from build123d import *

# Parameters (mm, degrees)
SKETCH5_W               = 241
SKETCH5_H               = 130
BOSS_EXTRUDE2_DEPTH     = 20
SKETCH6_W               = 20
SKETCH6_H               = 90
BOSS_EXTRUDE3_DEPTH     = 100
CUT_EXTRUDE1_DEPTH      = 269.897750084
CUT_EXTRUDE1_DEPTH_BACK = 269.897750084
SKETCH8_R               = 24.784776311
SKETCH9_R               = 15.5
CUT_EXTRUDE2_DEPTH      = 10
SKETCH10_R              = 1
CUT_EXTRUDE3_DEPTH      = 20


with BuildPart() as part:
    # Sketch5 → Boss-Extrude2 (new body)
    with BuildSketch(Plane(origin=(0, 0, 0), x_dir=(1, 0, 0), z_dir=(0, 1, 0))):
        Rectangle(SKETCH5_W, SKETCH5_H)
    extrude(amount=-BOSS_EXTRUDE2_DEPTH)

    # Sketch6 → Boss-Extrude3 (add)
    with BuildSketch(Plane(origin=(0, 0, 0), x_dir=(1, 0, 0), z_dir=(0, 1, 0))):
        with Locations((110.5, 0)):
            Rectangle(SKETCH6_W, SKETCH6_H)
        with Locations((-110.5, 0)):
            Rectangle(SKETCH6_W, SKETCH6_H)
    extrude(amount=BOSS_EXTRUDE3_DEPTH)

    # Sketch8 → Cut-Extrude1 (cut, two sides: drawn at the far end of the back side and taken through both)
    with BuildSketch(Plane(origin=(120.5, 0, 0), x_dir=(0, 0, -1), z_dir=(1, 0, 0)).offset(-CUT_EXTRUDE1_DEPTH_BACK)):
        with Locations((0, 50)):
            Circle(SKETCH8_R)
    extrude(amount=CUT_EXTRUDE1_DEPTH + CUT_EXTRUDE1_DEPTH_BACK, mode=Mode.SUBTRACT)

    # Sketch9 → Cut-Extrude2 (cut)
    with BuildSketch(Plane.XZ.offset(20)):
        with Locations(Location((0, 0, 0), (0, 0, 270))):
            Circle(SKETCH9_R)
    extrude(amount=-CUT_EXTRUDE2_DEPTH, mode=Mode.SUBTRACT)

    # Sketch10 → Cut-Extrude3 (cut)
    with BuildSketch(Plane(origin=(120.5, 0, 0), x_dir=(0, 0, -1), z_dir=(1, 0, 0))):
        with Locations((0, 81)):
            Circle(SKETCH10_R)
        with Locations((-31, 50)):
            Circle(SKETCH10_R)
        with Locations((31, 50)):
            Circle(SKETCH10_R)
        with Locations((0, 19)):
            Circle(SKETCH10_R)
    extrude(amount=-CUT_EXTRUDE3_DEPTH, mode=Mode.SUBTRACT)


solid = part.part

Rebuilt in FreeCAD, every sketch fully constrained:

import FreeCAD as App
import Part
import Sketcher
from FreeCAD import Vector


def add_polygon(sketch, points):
    """Adds a closed chain of lines whose ends are joined by coincident constraints."""
    first, n = sketch.GeometryCount, len(points)
    for a, b in zip(points, points[1:] + points[:1]):
        sketch.addGeometry(Part.LineSegment(App.Vector(*a, 0), App.Vector(*b, 0)), False)
    for i in range(n):
        sketch.addConstraint(Sketcher.Constraint("Coincident", first + i, 2, first + (i + 1) % n, 1))

doc = App.newDocument("Part")
params = doc.addObject("Spreadsheet::Sheet", "Params")
for row, (alias, value) in enumerate([
    ("sketch1_width", "241 mm"),
    ("sketch1_height", "130 mm"),
    ("pad1_length", "20 mm"),
    ("sketch2_width", "20 mm"),
    ("sketch2_height", "90 mm"),
    ("pad2_length", "100 mm"),
    ("sketch4_diameter", "31 mm"),
    ("pocket2_length", "10 mm"),
    ("sketch5_diameter", "2 mm"),
    ("pocket3_length", "20 mm"),
], start=1):
    params.set(f"A{row}", alias)
    params.set(f"B{row}", "=" + value)
    params.setAlias(f"B{row}", alias)

body = doc.addObject("PartDesign::Body", "Body")

# Sketch on XZ plane
sketch1 = body.newObject("Sketcher::SketchObject", "Sketch")
sketch1.AttachmentSupport = (doc.getObject("XZ_Plane"), [""])
sketch1.MapMode = "FlatFace"
add_polygon(sketch1, [(-120, -65), (-120, 65), (120, 65), (120, -65)])  # lines 0-3
sketch1.addConstraint([
    Sketcher.Constraint("Vertical", 0),
    Sketcher.Constraint("Horizontal", 1),
    Sketcher.Constraint("Vertical", 2),
    Sketcher.Constraint("Horizontal", 3),
    Sketcher.Constraint("Symmetric", 0, 2, 2, 2, -1, 1),
    Sketcher.Constraint("DistanceX", 1, 1, 1, 2, 241.0),
    Sketcher.Constraint("DistanceY", 0, 1, 0, 2, 130.0),
])
sketch1.setExpression("Constraints[9]", "Params.sketch1_width")
sketch1.setExpression("Constraints[10]", "Params.sketch1_height")
pad1 = body.newObject("PartDesign::Pad", "Pad")
pad1.Profile = sketch1
pad1.setExpression("Length", "Params.pad1_length")

# Sketch on XZ plane
sketch2 = body.newObject("Sketcher::SketchObject", "Sketch001")
sketch2.AttachmentSupport = (doc.getObject("XZ_Plane"), [""])
sketch2.MapMode = "FlatFace"
add_polygon(sketch2, [(100, -45), (100, 45), (120, 45), (120, -45)])  # lines 0-3
add_polygon(sketch2, [(-120, -45), (-120, 45), (-100, 45), (-100, -45)])  # lines 4-7
sketch2.addConstraint([
    Sketcher.Constraint("Vertical", 0),
    Sketcher.Constraint("Horizontal", 1),
    Sketcher.Constraint("Vertical", 2),
    Sketcher.Constraint("Horizontal", 3),
    Sketcher.Constraint("Vertical", 4),
    Sketcher.Constraint("Horizontal", 5),
    Sketcher.Constraint("Vertical", 6),
    Sketcher.Constraint("Horizontal", 7),
    Sketcher.Constraint("Symmetric", 2, 2, 4, 2, -1, 1),
    Sketcher.Constraint("Symmetric", 0, 2, 6, 2, -1, 1),
    Sketcher.Constraint("Horizontal", 1, 2, 4, 2),
    Sketcher.Constraint("DistanceX", 1, 1, 1, 2, 20.0),
    Sketcher.Constraint("DistanceY", 0, 1, 0, 2, 90.0),
    Sketcher.Constraint("DistanceX", 4, 2, 0, 2, 221.0),
])
sketch2.setExpression("Constraints[19]", "Params.sketch2_width")
sketch2.setExpression("Constraints[20]", "Params.sketch2_height")
pad2 = body.newObject("PartDesign::Pad", "Pad001")
pad2.Profile = sketch2
pad2.setExpression("Length", "Params.pad2_length")
pad2.Reversed = True

# Sketch on YZ plane
sketch3 = body.newObject("Sketcher::SketchObject", "Sketch002")
sketch3.AttachmentSupport = (doc.getObject("YZ_Plane"), [""])
sketch3.MapMode = "FlatFace"
sketch3.AttachmentOffset = App.Placement(Vector(0, 0, 120.5), App.Rotation())
sketch3.addGeometry(Part.Circle(Vector(50, 0, 0), Vector(0, 0, 1), 25), False)
sketch3.addConstraint([
    Sketcher.Constraint("PointOnObject", 0, 3, -1),
    Sketcher.Constraint("DistanceX", -1, 1, 0, 3, 50.0),
    Sketcher.Constraint("Diameter", 0, 49.569553),
])
pocket1 = body.newObject("PartDesign::Pocket", "Pocket")
pocket1.Profile = sketch3
pocket1.Type = "ThroughAll"
pocket1.Midplane = True

# Sketch on XZ plane
sketch4 = body.newObject("Sketcher::SketchObject", "Sketch003")
sketch4.AttachmentSupport = (doc.getObject("XZ_Plane"), [""])
sketch4.MapMode = "FlatFace"
sketch4.AttachmentOffset = App.Placement(Vector(0, 0, 20), App.Rotation())
sketch4.addGeometry(Part.Circle(Vector(0, 0, 0), Vector(0, 0, 1), 16), False)
sketch4.addConstraint([
    Sketcher.Constraint("Coincident", 0, 3, -1, 1),
    Sketcher.Constraint("Diameter", 0, 31.0),
])
sketch4.setExpression("Constraints[1]", "Params.sketch4_diameter")
pocket2 = body.newObject("PartDesign::Pocket", "Pocket001")
pocket2.Profile = sketch4
pocket2.setExpression("Length", "Params.pocket2_length")

# Sketch on YZ plane
sketch5 = body.newObject("Sketcher::SketchObject", "Sketch004")
sketch5.AttachmentSupport = (doc.getObject("YZ_Plane"), [""])
sketch5.MapMode = "FlatFace"
sketch5.AttachmentOffset = App.Placement(Vector(0, 0, 120.5), App.Rotation())
sketch5.addGeometry([
    Part.Circle(Vector(81, 0, 0), Vector(0, 0, 1), 1),
    Part.Circle(Vector(50, 31, 0), Vector(0, 0, 1), 1),
    Part.Circle(Vector(50, -31, 0), Vector(0, 0, 1), 1),
    Part.Circle(Vector(19, 0, 0), Vector(0, 0, 1), 1),
], False)
sketch5.addConstraint([
    Sketcher.Constraint("Equal", 0, 1),
    Sketcher.Constraint("Equal", 1, 2),
    Sketcher.Constraint("Equal", 2, 3),
    Sketcher.Constraint("Symmetric", 1, 3, 2, 3, -1),
    Sketcher.Constraint("PointOnObject", 0, 3, -1),
    Sketcher.Constraint("PointOnObject", 3, 3, -1),
    Sketcher.Constraint("Diameter", 0, 2.0),
    Sketcher.Constraint("DistanceX", -1, 1, 0, 3, 81.0),
    Sketcher.Constraint("DistanceX", -1, 1, 1, 3, 50.0),
    Sketcher.Constraint("DistanceY", -1, 1, 1, 3, 31.0),
    Sketcher.Constraint("DistanceX", -1, 1, 3, 3, 19.0),
])
sketch5.setExpression("Constraints[6]", "Params.sketch5_diameter")
pocket3 = body.newObject("PartDesign::Pocket", "Pocket002")
pocket3.Profile = sketch5
pocket3.setExpression("Length", "Params.pocket3_length")

doc.recompute()
